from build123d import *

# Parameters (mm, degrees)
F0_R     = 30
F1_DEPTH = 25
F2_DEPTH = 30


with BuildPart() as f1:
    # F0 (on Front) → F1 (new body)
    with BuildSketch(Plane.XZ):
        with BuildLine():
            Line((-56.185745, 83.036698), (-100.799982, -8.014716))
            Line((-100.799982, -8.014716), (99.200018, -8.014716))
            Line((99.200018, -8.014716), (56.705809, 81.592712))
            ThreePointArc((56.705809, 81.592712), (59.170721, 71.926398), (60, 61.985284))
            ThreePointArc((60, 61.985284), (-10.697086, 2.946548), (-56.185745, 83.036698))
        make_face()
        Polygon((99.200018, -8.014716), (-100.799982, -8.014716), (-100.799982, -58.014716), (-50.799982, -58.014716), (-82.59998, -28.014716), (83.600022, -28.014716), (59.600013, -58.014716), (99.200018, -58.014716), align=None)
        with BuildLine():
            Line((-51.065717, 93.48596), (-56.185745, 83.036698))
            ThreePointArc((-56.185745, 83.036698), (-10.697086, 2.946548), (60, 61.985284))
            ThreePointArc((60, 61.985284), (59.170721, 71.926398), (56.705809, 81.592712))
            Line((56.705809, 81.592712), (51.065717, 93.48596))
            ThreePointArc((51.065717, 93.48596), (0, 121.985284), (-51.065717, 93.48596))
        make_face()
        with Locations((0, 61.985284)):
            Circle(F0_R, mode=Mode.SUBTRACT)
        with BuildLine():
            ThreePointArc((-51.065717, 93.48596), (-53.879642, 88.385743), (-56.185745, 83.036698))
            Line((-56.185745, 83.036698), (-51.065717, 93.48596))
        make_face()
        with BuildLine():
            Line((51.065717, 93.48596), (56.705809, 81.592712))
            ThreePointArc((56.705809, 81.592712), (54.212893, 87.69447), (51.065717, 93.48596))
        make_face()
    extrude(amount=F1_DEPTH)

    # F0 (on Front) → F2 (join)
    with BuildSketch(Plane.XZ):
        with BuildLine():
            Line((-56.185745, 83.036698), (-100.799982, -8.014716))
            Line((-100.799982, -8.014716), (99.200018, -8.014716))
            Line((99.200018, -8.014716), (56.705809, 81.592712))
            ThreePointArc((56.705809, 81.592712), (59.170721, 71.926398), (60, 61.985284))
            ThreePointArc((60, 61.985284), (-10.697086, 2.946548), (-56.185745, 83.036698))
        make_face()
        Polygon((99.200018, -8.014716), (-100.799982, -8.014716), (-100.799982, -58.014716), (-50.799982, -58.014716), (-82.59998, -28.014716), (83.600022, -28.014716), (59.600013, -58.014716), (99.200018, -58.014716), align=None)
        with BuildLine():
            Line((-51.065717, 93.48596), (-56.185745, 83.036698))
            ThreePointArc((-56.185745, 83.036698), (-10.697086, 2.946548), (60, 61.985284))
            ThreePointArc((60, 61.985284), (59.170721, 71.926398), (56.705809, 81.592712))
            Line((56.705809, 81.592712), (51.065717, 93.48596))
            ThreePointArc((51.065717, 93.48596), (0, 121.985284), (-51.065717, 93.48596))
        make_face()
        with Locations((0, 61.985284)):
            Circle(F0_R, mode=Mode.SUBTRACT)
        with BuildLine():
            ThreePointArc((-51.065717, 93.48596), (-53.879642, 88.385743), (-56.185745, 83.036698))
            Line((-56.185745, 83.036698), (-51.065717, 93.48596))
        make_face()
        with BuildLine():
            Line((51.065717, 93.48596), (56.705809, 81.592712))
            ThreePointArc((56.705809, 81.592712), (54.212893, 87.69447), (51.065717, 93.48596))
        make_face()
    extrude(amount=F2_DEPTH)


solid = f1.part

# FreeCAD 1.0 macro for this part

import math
import FreeCAD as App
import Part
import Sketcher
from FreeCAD import Vector

doc = App.newDocument("Part")
params = doc.addObject("Spreadsheet::Sheet", "Params")
for row, (alias, value) in enumerate([
    ("sketch1_diameter", "60 mm"),
    ("sketch1_radius", "60.000001 mm"),
    ("sketch1_width", "50 mm"),
    ("sketch1_width2", "166.200002 mm"),
    ("pad1_length", "25 mm"),
    ("sketch2_diameter", "60 mm"),
    ("sketch2_radius", "60.000001 mm"),
    ("sketch2_width", "50 mm"),
    ("sketch2_width2", "166.200002 mm"),
    ("pad2_length", "30 mm"),
], start=1):
    params.set(f"A{row}", alias)
    params.set(f"B{row}", "=" + value)
    params.setAlias(f"B{row}", alias)

body = doc.addObject("PartDesign::Body", "Body")

sketch1 = body.newObject("Sketcher::SketchObject", "Sketch")
sketch1.AttachmentSupport = (doc.getObject("XZ_Plane"), [""])
sketch1.MapMode = "FlatFace"
sketch1.addGeometry([
    Part.LineSegment(Vector(-56, 83, 0), Vector(-101, -8, 0)),
    Part.LineSegment(Vector(-101, -8, 0), Vector(-101, -58, 0)),
    Part.LineSegment(Vector(-101, -58, 0), Vector(-51, -58, 0)),
    Part.LineSegment(Vector(-51, -58, 0), Vector(-83, -28, 0)),
    Part.LineSegment(Vector(-83, -28, 0), Vector(84, -28, 0)),
    Part.LineSegment(Vector(84, -28, 0), Vector(60, -58, 0)),
    Part.LineSegment(Vector(60, -58, 0), Vector(99, -58, 0)),
    Part.LineSegment(Vector(99, -58, 0), Vector(99, -8, 0)),
    Part.LineSegment(Vector(99, -8, 0), Vector(57, 82, 0)),
    Part.ArcOfCircle(Part.Circle(Vector(0, 62, 0), Vector(0, 0, 1), 60), math.radians(19.07), math.radians(31.67)),
    Part.ArcOfCircle(Part.Circle(Vector(0, 62, 0), Vector(0, 0, 1), 60), math.radians(32), math.radians(148)),
    Part.ArcOfCircle(Part.Circle(Vector(0, 62, 0), Vector(0, 0, 1), 60), math.radians(148.33), math.radians(159.46)),
    Part.Circle(Vector(0, 62, 0), Vector(0, 0, 1), 30),
], False)
sketch1.addConstraint([
    Sketcher.Constraint("Coincident", 0, 2, 1, 1),
    Sketcher.Constraint("Coincident", 1, 2, 2, 1),
    Sketcher.Constraint("Coincident", 2, 2, 3, 1),
    Sketcher.Constraint("Coincident", 3, 2, 4, 1),
    Sketcher.Constraint("Coincident", 4, 2, 5, 1),
    Sketcher.Constraint("Coincident", 5, 2, 6, 1),
    Sketcher.Constraint("Coincident", 6, 2, 7, 1),
    Sketcher.Constraint("Coincident", 7, 2, 8, 1),
    Sketcher.Constraint("Coincident", 8, 2, 9, 1),
    Sketcher.Constraint("Tangent", 9, 2, 10, 1),
    Sketcher.Constraint("Tangent", 10, 2, 11, 1),
    Sketcher.Constraint("Coincident", 11, 2, 0, 1),
    Sketcher.Constraint("Vertical", 1),
    Sketcher.Constraint("Horizontal", 2),
    Sketcher.Constraint("Horizontal", 4),
    Sketcher.Constraint("Horizontal", 6),
    Sketcher.Constraint("Vertical", 7),
    Sketcher.Constraint("Coincident", 12, 3, 10, 3),
    Sketcher.Constraint("Symmetric", 9, 2, 10, 2, -2),
    Sketcher.Constraint("Horizontal", 2, 2, 5, 2),
    Sketcher.Constraint("Horizontal", 0, 2, 7, 2),
    Sketcher.Constraint("Equal", 2, 1),
    Sketcher.Constraint("Diameter", 12, 60.0),
    Sketcher.Constraint("Radius", 10, 60.000001),
    Sketcher.Constraint("DistanceX", 2, 1, 2, 2, 50.0),
    Sketcher.Constraint("DistanceX", 4, 1, 4, 2, 166.200002),
    Sketcher.Constraint("DistanceY", 0, 2, 10, 3, 69.999999),
    Sketcher.Constraint("DistanceY", 3, 2, 0, 2, 20.0),
    Sketcher.Constraint("DistanceX", 2, 2, 6, 2, 150.0),
    Sketcher.Constraint("DistanceX", 0, 2, 3, 2, 18.200002),
    Sketcher.Constraint("Radius", 11, 59.999911),
    Sketcher.Constraint("Radius", 9, 60.000017),
    Sketcher.Constraint("DistanceY", -1, 1, 11, 2, 83.036698),
    Sketcher.Constraint("DistanceX", 3, 2, 11, 3, 82.599901),
    Sketcher.Constraint("DistanceX", 10, 2, 9, 3, 51.065702),
    Sketcher.Constraint("Distance", 0, 101.394231),
    Sketcher.Constraint("Distance", 5, 38.418751),
    Sketcher.Constraint("DistanceX", -1, 1, 8, 2, 56.705809),
])
sketch1.setExpression("Constraints[22]", "Params.sketch1_diameter")
sketch1.setExpression("Constraints[23]", "Params.sketch1_radius")
sketch1.setExpression("Constraints[24]", "Params.sketch1_width")
sketch1.setExpression("Constraints[25]", "Params.sketch1_width2")
pad1 = body.newObject("PartDesign::Pad", "Pad")
pad1.Profile = sketch1
pad1.setExpression("Length", "Params.pad1_length")

sketch2 = body.newObject("Sketcher::SketchObject", "Sketch001")
sketch2.AttachmentSupport = (doc.getObject("XZ_Plane"), [""])
sketch2.MapMode = "FlatFace"
sketch2.addGeometry([
    Part.LineSegment(Vector(-56, 83, 0), Vector(-101, -8, 0)),
    Part.LineSegment(Vector(-101, -8, 0), Vector(-101, -58, 0)),
    Part.LineSegment(Vector(-101, -58, 0), Vector(-51, -58, 0)),
    Part.LineSegment(Vector(-51, -58, 0), Vector(-83, -28, 0)),
    Part.LineSegment(Vector(-83, -28, 0), Vector(84, -28, 0)),
    Part.LineSegment(Vector(84, -28, 0), Vector(60, -58, 0)),
    Part.LineSegment(Vector(60, -58, 0), Vector(99, -58, 0)),
    Part.LineSegment(Vector(99, -58, 0), Vector(99, -8, 0)),
    Part.LineSegment(Vector(99, -8, 0), Vector(57, 82, 0)),
    Part.ArcOfCircle(Part.Circle(Vector(0, 62, 0), Vector(0, 0, 1), 60), math.radians(19.07), math.radians(31.67)),
    Part.ArcOfCircle(Part.Circle(Vector(0, 62, 0), Vector(0, 0, 1), 60), math.radians(32), math.radians(148)),
    Part.ArcOfCircle(Part.Circle(Vector(0, 62, 0), Vector(0, 0, 1), 60), math.radians(148.33), math.radians(159.46)),
    Part.Circle(Vector(0, 62, 0), Vector(0, 0, 1), 30),
], False)
sketch2.addConstraint([
    Sketcher.Constraint("Coincident", 0, 2, 1, 1),
    Sketcher.Constraint("Coincident", 1, 2, 2, 1),
    Sketcher.Constraint("Coincident", 2, 2, 3, 1),
    Sketcher.Constraint("Coincident", 3, 2, 4, 1),
    Sketcher.Constraint("Coincident", 4, 2, 5, 1),
    Sketcher.Constraint("Coincident", 5, 2, 6, 1),
    Sketcher.Constraint("Coincident", 6, 2, 7, 1),
    Sketcher.Constraint("Coincident", 7, 2, 8, 1),
    Sketcher.Constraint("Coincident", 8, 2, 9, 1),
    Sketcher.Constraint("Tangent", 9, 2, 10, 1),
    Sketcher.Constraint("Tangent", 10, 2, 11, 1),
    Sketcher.Constraint("Coincident", 11, 2, 0, 1),
    Sketcher.Constraint("Vertical", 1),
    Sketcher.Constraint("Horizontal", 2),
    Sketcher.Constraint("Horizontal", 4),
    Sketcher.Constraint("Horizontal", 6),
    Sketcher.Constraint("Vertical", 7),
    Sketcher.Constraint("Coincident", 12, 3, 10, 3),
    Sketcher.Constraint("Symmetric", 9, 2, 10, 2, -2),
    Sketcher.Constraint("Horizontal", 2, 2, 5, 2),
    Sketcher.Constraint("Horizontal", 0, 2, 7, 2),
    Sketcher.Constraint("Equal", 2, 1),
    Sketcher.Constraint("Diameter", 12, 60.0),
    Sketcher.Constraint("Radius", 10, 60.000001),
    Sketcher.Constraint("DistanceX", 2, 1, 2, 2, 50.0),
    Sketcher.Constraint("DistanceX", 4, 1, 4, 2, 166.200002),
    Sketcher.Constraint("DistanceY", 0, 2, 10, 3, 69.999999),
    Sketcher.Constraint("DistanceY", 3, 2, 0, 2, 20.0),
    Sketcher.Constraint("DistanceX", 2, 2, 6, 2, 150.0),
    Sketcher.Constraint("DistanceX", 0, 2, 3, 2, 18.200002),
    Sketcher.Constraint("Radius", 11, 59.999911),
    Sketcher.Constraint("Radius", 9, 60.000017),
    Sketcher.Constraint("DistanceY", -1, 1, 11, 2, 83.036698),
    Sketcher.Constraint("DistanceX", 3, 2, 11, 3, 82.599901),
    Sketcher.Constraint("DistanceX", 10, 2, 9, 3, 51.065702),
    Sketcher.Constraint("Distance", 0, 101.394231),
    Sketcher.Constraint("Distance", 5, 38.418751),
    Sketcher.Constraint("DistanceX", -1, 1, 8, 2, 56.705809),
])
sketch2.setExpression("Constraints[22]", "Params.sketch2_diameter")
sketch2.setExpression("Constraints[23]", "Params.sketch2_radius")
sketch2.setExpression("Constraints[24]", "Params.sketch2_width")
sketch2.setExpression("Constraints[25]", "Params.sketch2_width2")
pad2 = body.newObject("PartDesign::Pad", "Pad001")
pad2.Profile = sketch2
pad2.setExpression("Length", "Params.pad2_length")

doc.recompute()
